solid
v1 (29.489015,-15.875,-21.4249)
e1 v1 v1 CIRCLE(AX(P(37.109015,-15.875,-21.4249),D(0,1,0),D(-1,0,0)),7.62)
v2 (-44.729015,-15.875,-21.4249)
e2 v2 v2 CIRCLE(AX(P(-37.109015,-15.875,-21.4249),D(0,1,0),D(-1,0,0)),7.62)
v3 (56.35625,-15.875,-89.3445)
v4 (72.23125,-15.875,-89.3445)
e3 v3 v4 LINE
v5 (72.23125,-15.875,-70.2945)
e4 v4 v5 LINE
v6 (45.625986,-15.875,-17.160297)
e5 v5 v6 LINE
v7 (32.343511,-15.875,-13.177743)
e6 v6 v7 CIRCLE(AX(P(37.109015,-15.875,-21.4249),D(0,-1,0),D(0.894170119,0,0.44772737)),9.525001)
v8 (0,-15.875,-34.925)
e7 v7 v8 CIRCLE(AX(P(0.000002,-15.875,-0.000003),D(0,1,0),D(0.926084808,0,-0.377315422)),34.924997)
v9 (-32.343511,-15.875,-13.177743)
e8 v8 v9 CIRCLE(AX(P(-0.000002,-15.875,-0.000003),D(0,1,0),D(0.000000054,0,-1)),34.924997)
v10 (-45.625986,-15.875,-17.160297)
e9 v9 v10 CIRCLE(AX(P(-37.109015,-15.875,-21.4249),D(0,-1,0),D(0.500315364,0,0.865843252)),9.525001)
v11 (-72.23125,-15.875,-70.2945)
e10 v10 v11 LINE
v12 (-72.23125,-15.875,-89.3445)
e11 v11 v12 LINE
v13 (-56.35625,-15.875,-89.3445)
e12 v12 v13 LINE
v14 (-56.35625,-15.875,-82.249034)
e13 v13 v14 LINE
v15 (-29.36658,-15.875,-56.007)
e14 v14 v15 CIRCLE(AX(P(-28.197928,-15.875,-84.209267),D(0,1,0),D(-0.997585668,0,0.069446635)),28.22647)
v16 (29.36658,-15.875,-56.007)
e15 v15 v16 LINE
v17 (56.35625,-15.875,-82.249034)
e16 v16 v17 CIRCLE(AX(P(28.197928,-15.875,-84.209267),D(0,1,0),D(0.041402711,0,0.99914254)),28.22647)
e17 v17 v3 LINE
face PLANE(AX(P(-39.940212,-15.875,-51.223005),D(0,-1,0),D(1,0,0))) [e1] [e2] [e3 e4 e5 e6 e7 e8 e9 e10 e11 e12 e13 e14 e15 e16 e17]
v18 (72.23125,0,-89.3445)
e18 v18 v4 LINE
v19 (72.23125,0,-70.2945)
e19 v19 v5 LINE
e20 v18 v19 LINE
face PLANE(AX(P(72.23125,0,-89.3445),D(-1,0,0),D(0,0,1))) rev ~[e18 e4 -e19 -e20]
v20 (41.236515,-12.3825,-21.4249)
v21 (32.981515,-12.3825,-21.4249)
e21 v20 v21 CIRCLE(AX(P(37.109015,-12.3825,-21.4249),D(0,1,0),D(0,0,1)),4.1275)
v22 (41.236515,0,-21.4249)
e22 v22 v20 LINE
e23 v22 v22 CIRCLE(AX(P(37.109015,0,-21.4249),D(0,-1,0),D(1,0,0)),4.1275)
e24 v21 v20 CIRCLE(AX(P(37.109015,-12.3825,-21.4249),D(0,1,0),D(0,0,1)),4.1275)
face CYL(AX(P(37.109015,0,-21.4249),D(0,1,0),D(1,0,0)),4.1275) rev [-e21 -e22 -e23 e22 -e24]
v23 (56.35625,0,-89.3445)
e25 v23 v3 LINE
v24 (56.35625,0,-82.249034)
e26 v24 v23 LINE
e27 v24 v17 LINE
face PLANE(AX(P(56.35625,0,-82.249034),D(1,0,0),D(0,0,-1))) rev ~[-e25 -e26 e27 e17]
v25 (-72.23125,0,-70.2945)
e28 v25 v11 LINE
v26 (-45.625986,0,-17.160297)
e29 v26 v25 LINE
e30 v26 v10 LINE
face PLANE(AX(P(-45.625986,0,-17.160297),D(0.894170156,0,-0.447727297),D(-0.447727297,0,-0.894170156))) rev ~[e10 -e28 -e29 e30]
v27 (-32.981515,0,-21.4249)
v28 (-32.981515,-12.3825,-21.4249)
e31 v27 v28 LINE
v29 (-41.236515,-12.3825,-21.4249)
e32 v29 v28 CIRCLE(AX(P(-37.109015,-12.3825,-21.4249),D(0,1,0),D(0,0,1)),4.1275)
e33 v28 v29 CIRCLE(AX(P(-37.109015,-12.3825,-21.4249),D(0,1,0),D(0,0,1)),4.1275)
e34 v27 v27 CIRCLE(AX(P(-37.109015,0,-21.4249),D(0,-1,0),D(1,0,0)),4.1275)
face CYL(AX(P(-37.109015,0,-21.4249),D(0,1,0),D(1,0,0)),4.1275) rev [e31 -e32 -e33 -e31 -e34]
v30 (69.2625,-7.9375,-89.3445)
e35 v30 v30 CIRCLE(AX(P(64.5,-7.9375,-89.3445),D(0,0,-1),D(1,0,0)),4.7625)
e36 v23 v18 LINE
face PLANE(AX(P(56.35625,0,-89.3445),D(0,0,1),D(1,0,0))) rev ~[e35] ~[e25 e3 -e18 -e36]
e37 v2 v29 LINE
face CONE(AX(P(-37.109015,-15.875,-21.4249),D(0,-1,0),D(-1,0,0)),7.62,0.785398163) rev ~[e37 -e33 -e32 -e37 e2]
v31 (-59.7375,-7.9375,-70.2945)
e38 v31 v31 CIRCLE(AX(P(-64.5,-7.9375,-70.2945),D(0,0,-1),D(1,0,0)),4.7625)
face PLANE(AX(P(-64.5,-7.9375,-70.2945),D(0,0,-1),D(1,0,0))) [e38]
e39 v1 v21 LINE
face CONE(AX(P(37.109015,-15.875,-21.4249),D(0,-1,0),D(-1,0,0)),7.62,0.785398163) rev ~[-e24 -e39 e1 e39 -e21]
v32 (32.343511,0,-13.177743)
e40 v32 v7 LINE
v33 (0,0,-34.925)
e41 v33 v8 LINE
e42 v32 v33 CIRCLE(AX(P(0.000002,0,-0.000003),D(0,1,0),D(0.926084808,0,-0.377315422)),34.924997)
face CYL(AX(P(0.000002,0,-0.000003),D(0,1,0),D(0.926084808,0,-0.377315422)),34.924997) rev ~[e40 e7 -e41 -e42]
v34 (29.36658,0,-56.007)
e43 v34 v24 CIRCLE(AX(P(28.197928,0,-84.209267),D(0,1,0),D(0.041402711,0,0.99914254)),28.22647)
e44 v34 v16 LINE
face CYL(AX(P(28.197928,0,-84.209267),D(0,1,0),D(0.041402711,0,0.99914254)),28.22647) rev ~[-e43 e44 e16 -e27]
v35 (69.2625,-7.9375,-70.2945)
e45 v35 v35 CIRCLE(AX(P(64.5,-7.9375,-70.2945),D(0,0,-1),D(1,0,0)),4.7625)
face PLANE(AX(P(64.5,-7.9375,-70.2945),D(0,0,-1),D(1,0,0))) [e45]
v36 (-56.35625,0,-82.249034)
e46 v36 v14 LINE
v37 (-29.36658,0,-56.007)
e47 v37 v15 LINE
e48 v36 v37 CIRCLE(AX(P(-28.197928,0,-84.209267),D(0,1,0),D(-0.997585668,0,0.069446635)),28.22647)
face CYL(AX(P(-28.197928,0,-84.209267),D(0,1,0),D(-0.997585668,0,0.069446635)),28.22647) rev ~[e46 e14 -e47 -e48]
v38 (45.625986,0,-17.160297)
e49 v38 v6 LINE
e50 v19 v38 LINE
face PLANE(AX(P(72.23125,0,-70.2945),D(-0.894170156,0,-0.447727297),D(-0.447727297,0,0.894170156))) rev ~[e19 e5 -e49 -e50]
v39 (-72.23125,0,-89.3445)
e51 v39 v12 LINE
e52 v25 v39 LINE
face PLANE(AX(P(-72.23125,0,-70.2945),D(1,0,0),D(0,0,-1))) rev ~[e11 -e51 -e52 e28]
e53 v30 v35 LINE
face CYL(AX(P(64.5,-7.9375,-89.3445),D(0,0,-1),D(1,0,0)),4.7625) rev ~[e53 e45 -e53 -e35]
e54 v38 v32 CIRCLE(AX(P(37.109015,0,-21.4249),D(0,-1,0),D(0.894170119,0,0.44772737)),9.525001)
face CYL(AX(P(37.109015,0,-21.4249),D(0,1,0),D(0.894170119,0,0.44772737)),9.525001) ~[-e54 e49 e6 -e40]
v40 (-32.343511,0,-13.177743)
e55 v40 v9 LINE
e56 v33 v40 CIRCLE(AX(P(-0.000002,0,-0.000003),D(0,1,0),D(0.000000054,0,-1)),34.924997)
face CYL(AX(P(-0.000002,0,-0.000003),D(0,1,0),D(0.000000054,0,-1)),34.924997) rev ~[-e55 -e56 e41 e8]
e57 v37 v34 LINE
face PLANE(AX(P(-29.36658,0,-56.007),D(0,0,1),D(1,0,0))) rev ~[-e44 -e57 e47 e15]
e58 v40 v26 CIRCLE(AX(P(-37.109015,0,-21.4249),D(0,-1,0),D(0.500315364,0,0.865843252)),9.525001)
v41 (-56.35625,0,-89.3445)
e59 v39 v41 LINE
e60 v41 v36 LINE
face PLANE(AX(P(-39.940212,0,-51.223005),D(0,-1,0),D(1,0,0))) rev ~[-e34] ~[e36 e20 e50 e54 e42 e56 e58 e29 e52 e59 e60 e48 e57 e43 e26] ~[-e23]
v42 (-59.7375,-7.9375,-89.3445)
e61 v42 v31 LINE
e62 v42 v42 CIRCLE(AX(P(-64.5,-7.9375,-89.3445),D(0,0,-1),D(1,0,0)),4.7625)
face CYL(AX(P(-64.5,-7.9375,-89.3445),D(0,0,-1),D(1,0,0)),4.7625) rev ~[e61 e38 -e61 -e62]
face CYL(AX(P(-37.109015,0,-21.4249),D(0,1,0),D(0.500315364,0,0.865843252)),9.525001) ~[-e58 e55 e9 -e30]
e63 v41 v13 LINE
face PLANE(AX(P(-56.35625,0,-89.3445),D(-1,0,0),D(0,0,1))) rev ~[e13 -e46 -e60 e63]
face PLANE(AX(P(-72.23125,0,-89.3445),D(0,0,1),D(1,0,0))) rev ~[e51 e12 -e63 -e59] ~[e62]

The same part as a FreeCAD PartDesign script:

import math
import FreeCAD as App
import Part
import Sketcher
Q = App.Units.Quantity

doc = App.newDocument("Part")
params = doc.addObject("Spreadsheet::Sheet", "Params")
for row, (alias, value) in enumerate([
    ("sketch1_diameter", "0.325 in"),
    ("sketch1_radius", "1.3749999 in"),
    ("sketch1_radius2", "0.375 in"),
    ("sketch1_height", "0.75 in"),
    ("sketch1_width", "0.625 in"),
    ("pad1_length", "0.625 in"),
    ("sketch2_diameter", "0.325 in"),
    ("hole_diameter", "0.325 in"),
    ("hole_depth", "1 in"),
    ("hole_csink_diameter", "0.6 in"),
    ("sketch3_diameter", "0.375 in"),
    ("pocket1_length", "0.75 in"),
], start=1):
    params.set(f"A{row}", alias)
    params.set(f"B{row}", "=" + value)
    params.setAlias(f"B{row}", alias)

body = doc.addObject("PartDesign::Body", "Body")

sketch1 = body.newObject("Sketcher::SketchObject", "Sketch")
sketch1.AttachmentSupport = (doc.getObject("XZ_Plane"), [""])
sketch1.MapMode = "FlatFace"
sketch1.addGeometry(Part.ArcOfCircle(Part.Circle(App.Vector(0, 0, 0), App.Vector(0, 0, 1), 34.9), math.radians(-158), math.radians(-90)), False)
sketch1.addGeometry(Part.ArcOfCircle(Part.Circle(App.Vector(-37.1, -21.4, 0), App.Vector(0, 0, 1), 9.5), math.radians(60), math.radians(153)), False)
sketch1.addGeometry(Part.LineSegment(App.Vector(-45.6, -17.2, 0), App.Vector(-72.2, -70.3, 0)), False)
sketch1.addGeometry(Part.LineSegment(App.Vector(-72.2, -70.3, 0), App.Vector(-72.2, -89.3, 0)), False)
sketch1.addGeometry(Part.LineSegment(App.Vector(-72.2, -89.3, 0), App.Vector(-56.4, -89.3, 0)), False)
sketch1.addGeometry(Part.LineSegment(App.Vector(-56.4, -89.3, 0), App.Vector(-56.4, -82.2, 0)), False)
sketch1.addGeometry(Part.ArcOfCircle(Part.Circle(App.Vector(-28.2, -84.2, 0), App.Vector(0, 0, 1), 28.2), math.radians(92), math.radians(176)), False)
sketch1.addGeometry(Part.LineSegment(App.Vector(-29.4, -56, 0), App.Vector(29.4, -56, 0)), False)
sketch1.addGeometry(Part.ArcOfCircle(Part.Circle(App.Vector(28.2, -84.2, 0), App.Vector(0, 0, 1), 28.2), math.radians(4), math.radians(88)), False)
sketch1.addGeometry(Part.LineSegment(App.Vector(56.4, -82.2, 0), App.Vector(56.4, -89.3, 0)), False)
sketch1.addGeometry(Part.LineSegment(App.Vector(56.4, -89.3, 0), App.Vector(72.2, -89.3, 0)), False)
sketch1.addGeometry(Part.LineSegment(App.Vector(72.2, -89.3, 0), App.Vector(72.2, -70.3, 0)), False)
sketch1.addGeometry(Part.LineSegment(App.Vector(72.2, -70.3, 0), App.Vector(45.6, -17.2, 0)), False)
sketch1.addGeometry(Part.ArcOfCircle(Part.Circle(App.Vector(37.1, -21.4, 0), App.Vector(0, 0, 1), 9.5), math.radians(27), math.radians(120)), False)
sketch1.addGeometry(Part.ArcOfCircle(Part.Circle(App.Vector(0, 0, 0), App.Vector(0, 0, 1), 34.9), math.radians(-90), math.radians(-22)), False)
sketch1.addGeometry(Part.Circle(App.Vector(-37.1, -21.4, 0), App.Vector(0, 0, 1), 4.1), False)
sketch1.addGeometry(Part.Circle(App.Vector(37.1, -21.4, 0), App.Vector(0, 0, 1), 4.1), False)
sketch1.addConstraint(Sketcher.Constraint("Coincident", 0, 1, 1, 1))
sketch1.addConstraint(Sketcher.Constraint("Tangent", 1, 2, 2, 1))
sketch1.addConstraint(Sketcher.Constraint("Coincident", 2, 2, 3, 1))
sketch1.addConstraint(Sketcher.Constraint("Coincident", 3, 2, 4, 1))
sketch1.addConstraint(Sketcher.Constraint("Coincident", 4, 2, 5, 1))
sketch1.addConstraint(Sketcher.Constraint("Coincident", 5, 2, 6, 2))
sketch1.addConstraint(Sketcher.Constraint("Coincident", 6, 1, 7, 1))
sketch1.addConstraint(Sketcher.Constraint("Coincident", 7, 2, 8, 2))
sketch1.addConstraint(Sketcher.Constraint("Coincident", 8, 1, 9, 1))
sketch1.addConstraint(Sketcher.Constraint("Coincident", 9, 2, 10, 1))
sketch1.addConstraint(Sketcher.Constraint("Coincident", 10, 2, 11, 1))
sketch1.addConstraint(Sketcher.Constraint("Coincident", 11, 2, 12, 1))
sketch1.addConstraint(Sketcher.Constraint("Tangent", 12, 2, 13, 1))
sketch1.addConstraint(Sketcher.Constraint("Coincident", 13, 2, 14, 2))
sketch1.addConstraint(Sketcher.Constraint("Tangent", 14, 1, 0, 2))
sketch1.addConstraint(Sketcher.Constraint("Vertical", 3))
sketch1.addConstraint(Sketcher.Constraint("Horizontal", 4))
sketch1.addConstraint(Sketcher.Constraint("Vertical", 5))
sketch1.addConstraint(Sketcher.Constraint("Horizontal", 7))
sketch1.addConstraint(Sketcher.Constraint("Vertical", 9))
sketch1.addConstraint(Sketcher.Constraint("Horizontal", 10))
sketch1.addConstraint(Sketcher.Constraint("Vertical", 11))
sketch1.addConstraint(Sketcher.Constraint("Coincident", 0, 3, -1, 1))
sketch1.addConstraint(Sketcher.Constraint("Coincident", 15, 3, 1, 3))
sketch1.addConstraint(Sketcher.Constraint("Coincident", 16, 3, 13, 3))
sketch1.addConstraint(Sketcher.Constraint("Equal", 6, 8))
sketch1.addConstraint(Sketcher.Constraint("Equal", 1, 13))
sketch1.addConstraint(Sketcher.Constraint("Equal", 0, 14))
sketch1.addConstraint(Sketcher.Constraint("Equal", 15, 16))
sketch1.addConstraint(Sketcher.Constraint("Symmetric", 6, 3, 8, 3, -2))
sketch1.addConstraint(Sketcher.Constraint("Symmetric", 1, 3, 13, 3, -2))
sketch1.addConstraint(Sketcher.Constraint("Symmetric", 4, 2, 9, 2, -2))
sketch1.addConstraint(Sketcher.Constraint("Symmetric", 2, 2, 11, 2, -2))
sketch1.addConstraint(Sketcher.Constraint("PointOnObject", 14, 1, -2))
sketch1.addConstraint(Sketcher.Constraint("Diameter", 15, Q("0.325 in")))
sketch1.addConstraint(Sketcher.Constraint("Radius", 0, Q("1.3749999 in")))
sketch1.addConstraint(Sketcher.Constraint("Radius", 1, Q("0.375 in")))
sketch1.addConstraint(Sketcher.Constraint("DistanceY", 3, 2, 3, 1, Q("0.75 in")))
sketch1.addConstraint(Sketcher.Constraint("DistanceX", 4, 1, 4, 2, Q("0.625 in")))
sketch1.addConstraint(Sketcher.Constraint("DistanceY", 7, 2, 14, 1, Q("0.83 in")))
sketch1.addConstraint(Sketcher.Constraint("DistanceX", 2, 2, -1, 1, Q("2.84375 in")))
sketch1.addConstraint(Sketcher.Constraint("Radius", 6, Q("28.22647 mm")))
sketch1.addConstraint(Sketcher.Constraint("DistanceY", 2, 2, 1, 3, Q("1.924 in")))
sketch1.addConstraint(Sketcher.Constraint("DistanceY", 9, 2, 7, 2, Q("1.3125 in")))
sketch1.addConstraint(Sketcher.Constraint("DistanceX", 7, 1, 7, 2, Q("58.73316 mm")))
sketch1.addConstraint(Sketcher.Constraint("Distance", 2, Q("59.422922 mm")))
sketch1.addConstraint(Sketcher.Constraint("DistanceY", 5, 1, 5, 2, Q("7.095466 mm")))
sketch1.setExpression("Constraints[34]", "Params.sketch1_diameter")
sketch1.setExpression("Constraints[35]", "Params.sketch1_radius")
sketch1.setExpression("Constraints[36]", "Params.sketch1_radius2")
sketch1.setExpression("Constraints[37]", "Params.sketch1_height")
sketch1.setExpression("Constraints[38]", "Params.sketch1_width")
pad1 = body.newObject("PartDesign::Pad", "Pad")
pad1.Profile = sketch1
pad1.setExpression("Length", "Params.pad1_length")

sketch2 = body.newObject("Sketcher::SketchObject", "Sketch001")
sketch2.AttachmentSupport = (doc.getObject("XZ_Plane"), [""])
sketch2.MapMode = "FlatFace"
sketch2.AttachmentOffset = App.Placement(App.Vector(0, 0, 0.625 * 25.4), App.Rotation())
sketch2.addGeometry(Part.Circle(App.Vector(-37.1, -21.4, 0), App.Vector(0, 0, 1), 4.1), False)
sketch2.addGeometry(Part.Circle(App.Vector(37.1, -21.4, 0), App.Vector(0, 0, 1), 4.1), False)
sketch2.addConstraint(Sketcher.Constraint("Equal", 0, 1))
sketch2.addConstraint(Sketcher.Constraint("Symmetric", 0, 3, 1, 3, -2))
sketch2.addConstraint(Sketcher.Constraint("Diameter", 0, Q("0.325 in")))
sketch2.addConstraint(Sketcher.Constraint("DistanceY", 0, 3, -1, 1, Q("0.8435 in")))
sketch2.addConstraint(Sketcher.Constraint("DistanceX", 0, 3, 1, 3, Q("74.21803 mm")))
sketch2.setExpression("Constraints[2]", "Params.sketch2_diameter")
doc.recompute()
hole = body.newObject("PartDesign::Hole", "Hole")
hole.Profile = sketch2
hole.ThreadType = "None"
hole.setExpression("Diameter", "Params.hole_diameter")
hole.DepthType = "Dimension"
hole.setExpression("Depth", "Params.hole_depth")
hole.DrillPoint = "Flat"
hole.HoleCutType = "Countersink"
hole.setExpression("HoleCutDiameter", "Params.hole_csink_diameter")
hole.HoleCutCountersinkAngle = 90

sketch3 = body.newObject("Sketcher::SketchObject", "Sketch002")
sketch3.AttachmentSupport = (doc.getObject("XY_Plane"), [""])
sketch3.MapMode = "FlatFace"
sketch3.AttachmentOffset = App.Placement(App.Vector(0, 0, -3.5175 * 25.4), App.Rotation())
sketch3.addGeometry(Part.Circle(App.Vector(-64.5, -7.9, 0), App.Vector(0, 0, 1), 4.8), False)
sketch3.addGeometry(Part.Circle(App.Vector(64.5, -7.9, 0), App.Vector(0, 0, 1), 4.8), False)
sketch3.addConstraint(Sketcher.Constraint("Equal", 0, 1))
sketch3.addConstraint(Sketcher.Constraint("Symmetric", 0, 3, 1, 3, -2))
sketch3.addConstraint(Sketcher.Constraint("Diameter", 0, Q("0.375 in")))
sketch3.addConstraint(Sketcher.Constraint("DistanceY", 0, 3, -1, 1, Q("0.3125 in")))
sketch3.addConstraint(Sketcher.Constraint("DistanceX", 0, 3, -1, 1, Q("64.5 mm")))
sketch3.setExpression("Constraints[2]", "Params.sketch3_diameter")
pocket1 = body.newObject("PartDesign::Pocket", "Pocket")
pocket1.Profile = sketch3
pocket1.setExpression("Length", "Params.pocket1_length")
pocket1.Reversed = True

doc.recompute()
